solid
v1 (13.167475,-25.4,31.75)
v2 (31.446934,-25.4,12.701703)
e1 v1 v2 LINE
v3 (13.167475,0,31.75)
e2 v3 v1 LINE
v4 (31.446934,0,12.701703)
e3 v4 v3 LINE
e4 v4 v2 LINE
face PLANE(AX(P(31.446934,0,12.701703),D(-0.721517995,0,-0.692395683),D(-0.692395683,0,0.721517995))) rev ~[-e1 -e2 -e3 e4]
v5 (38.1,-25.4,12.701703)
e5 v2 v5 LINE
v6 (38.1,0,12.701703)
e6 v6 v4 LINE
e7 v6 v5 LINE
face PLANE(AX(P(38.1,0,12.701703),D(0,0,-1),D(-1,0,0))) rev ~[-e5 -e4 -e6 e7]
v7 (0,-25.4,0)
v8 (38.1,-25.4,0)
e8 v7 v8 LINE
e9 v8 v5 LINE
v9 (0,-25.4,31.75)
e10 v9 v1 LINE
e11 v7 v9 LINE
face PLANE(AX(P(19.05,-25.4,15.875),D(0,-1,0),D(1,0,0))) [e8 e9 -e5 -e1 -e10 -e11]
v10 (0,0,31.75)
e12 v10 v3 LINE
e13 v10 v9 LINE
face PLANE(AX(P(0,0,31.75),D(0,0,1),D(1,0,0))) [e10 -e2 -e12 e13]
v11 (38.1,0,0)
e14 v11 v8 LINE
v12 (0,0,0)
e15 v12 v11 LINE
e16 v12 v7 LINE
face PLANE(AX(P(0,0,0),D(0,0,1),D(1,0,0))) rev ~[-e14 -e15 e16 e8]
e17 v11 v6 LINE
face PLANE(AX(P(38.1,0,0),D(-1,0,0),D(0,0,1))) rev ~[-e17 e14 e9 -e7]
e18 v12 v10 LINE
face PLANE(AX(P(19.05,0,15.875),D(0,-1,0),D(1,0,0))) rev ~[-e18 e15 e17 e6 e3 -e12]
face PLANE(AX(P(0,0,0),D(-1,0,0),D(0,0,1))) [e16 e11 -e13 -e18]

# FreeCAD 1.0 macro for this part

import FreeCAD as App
import Part
import Sketcher
from FreeCAD import Vector
Q = App.Units.Quantity


def add_polygon(sketch, points):
    """Adds a closed chain of lines whose ends are joined by coincident constraints."""
    first, n = sketch.GeometryCount, len(points)
    for a, b in zip(points, points[1:] + points[:1]):
        sketch.addGeometry(Part.LineSegment(App.Vector(*a, 0), App.Vector(*b, 0)), False)
    for i in range(n):
        sketch.addConstraint(Sketcher.Constraint("Coincident", first + i, 2, first + (i + 1) % n, 1))

doc = App.newDocument("Part")
body = doc.addObject("PartDesign::Body", "Body")

sketch1 = doc.addObject("Sketcher::SketchObject", "Sketch")
body.addObject(sketch1)
sketch1.AttachmentSupport = (doc.XZ_Plane, [""])
sketch1.MapMode = "FlatFace"
add_polygon(sketch1, [(0, 32), (0, 0), (38, 0), (38, 32)])
sketch1.addConstraint([
    Sketcher.Constraint("Vertical", 0),
    Sketcher.Constraint("Horizontal", 1),
    Sketcher.Constraint("Vertical", 2),
    Sketcher.Constraint("Horizontal", 3),
    Sketcher.Constraint("Coincident", 0, 2, -1, 1),
    Sketcher.Constraint("DistanceX", 1, 1, 1, 2, Q("1.5 in")),
    Sketcher.Constraint("DistanceY", 0, 2, 0, 1, Q("1.25 in")),
])
pad1 = doc.addObject("PartDesign::Pad", "Pad")
body.addObject(pad1)
pad1.Profile = sketch1
pad1.Length = Q("1 in")

sketch2 = doc.addObject("Sketcher::SketchObject", "Sketch001")
body.addObject(sketch2)
sketch2.AttachmentSupport = (doc.XZ_Plane, [""])
sketch2.MapMode = "FlatFace"
add_polygon(sketch2, [(31, 13), (13, 32), (38, 32), (38, 13)])
sketch2.addConstraint([
    Sketcher.Constraint("Horizontal", 1),
    Sketcher.Constraint("Vertical", 2),
    Sketcher.Constraint("Horizontal", 3),
    Sketcher.Constraint("DistanceX", -1, 1, 1, 2, Q("1.5 in")),
    Sketcher.Constraint("DistanceY", -1, 1, 0, 2, Q("1.25 in")),
    Sketcher.Constraint("DistanceX", 1, 1, 1, 2, 24.932525),
    Sketcher.Constraint("DistanceX", 3, 2, 3, 1, 6.653066),
    Sketcher.Constraint("DistanceY", 2, 2, 2, 1, 19.048297),
])
pocket1 = doc.addObject("PartDesign::Pocket", "Pocket")
body.addObject(pocket1)
pocket1.Profile = sketch2
pocket1.Type = "ThroughAll"
pocket1.Reversed = True

doc.recompute()
